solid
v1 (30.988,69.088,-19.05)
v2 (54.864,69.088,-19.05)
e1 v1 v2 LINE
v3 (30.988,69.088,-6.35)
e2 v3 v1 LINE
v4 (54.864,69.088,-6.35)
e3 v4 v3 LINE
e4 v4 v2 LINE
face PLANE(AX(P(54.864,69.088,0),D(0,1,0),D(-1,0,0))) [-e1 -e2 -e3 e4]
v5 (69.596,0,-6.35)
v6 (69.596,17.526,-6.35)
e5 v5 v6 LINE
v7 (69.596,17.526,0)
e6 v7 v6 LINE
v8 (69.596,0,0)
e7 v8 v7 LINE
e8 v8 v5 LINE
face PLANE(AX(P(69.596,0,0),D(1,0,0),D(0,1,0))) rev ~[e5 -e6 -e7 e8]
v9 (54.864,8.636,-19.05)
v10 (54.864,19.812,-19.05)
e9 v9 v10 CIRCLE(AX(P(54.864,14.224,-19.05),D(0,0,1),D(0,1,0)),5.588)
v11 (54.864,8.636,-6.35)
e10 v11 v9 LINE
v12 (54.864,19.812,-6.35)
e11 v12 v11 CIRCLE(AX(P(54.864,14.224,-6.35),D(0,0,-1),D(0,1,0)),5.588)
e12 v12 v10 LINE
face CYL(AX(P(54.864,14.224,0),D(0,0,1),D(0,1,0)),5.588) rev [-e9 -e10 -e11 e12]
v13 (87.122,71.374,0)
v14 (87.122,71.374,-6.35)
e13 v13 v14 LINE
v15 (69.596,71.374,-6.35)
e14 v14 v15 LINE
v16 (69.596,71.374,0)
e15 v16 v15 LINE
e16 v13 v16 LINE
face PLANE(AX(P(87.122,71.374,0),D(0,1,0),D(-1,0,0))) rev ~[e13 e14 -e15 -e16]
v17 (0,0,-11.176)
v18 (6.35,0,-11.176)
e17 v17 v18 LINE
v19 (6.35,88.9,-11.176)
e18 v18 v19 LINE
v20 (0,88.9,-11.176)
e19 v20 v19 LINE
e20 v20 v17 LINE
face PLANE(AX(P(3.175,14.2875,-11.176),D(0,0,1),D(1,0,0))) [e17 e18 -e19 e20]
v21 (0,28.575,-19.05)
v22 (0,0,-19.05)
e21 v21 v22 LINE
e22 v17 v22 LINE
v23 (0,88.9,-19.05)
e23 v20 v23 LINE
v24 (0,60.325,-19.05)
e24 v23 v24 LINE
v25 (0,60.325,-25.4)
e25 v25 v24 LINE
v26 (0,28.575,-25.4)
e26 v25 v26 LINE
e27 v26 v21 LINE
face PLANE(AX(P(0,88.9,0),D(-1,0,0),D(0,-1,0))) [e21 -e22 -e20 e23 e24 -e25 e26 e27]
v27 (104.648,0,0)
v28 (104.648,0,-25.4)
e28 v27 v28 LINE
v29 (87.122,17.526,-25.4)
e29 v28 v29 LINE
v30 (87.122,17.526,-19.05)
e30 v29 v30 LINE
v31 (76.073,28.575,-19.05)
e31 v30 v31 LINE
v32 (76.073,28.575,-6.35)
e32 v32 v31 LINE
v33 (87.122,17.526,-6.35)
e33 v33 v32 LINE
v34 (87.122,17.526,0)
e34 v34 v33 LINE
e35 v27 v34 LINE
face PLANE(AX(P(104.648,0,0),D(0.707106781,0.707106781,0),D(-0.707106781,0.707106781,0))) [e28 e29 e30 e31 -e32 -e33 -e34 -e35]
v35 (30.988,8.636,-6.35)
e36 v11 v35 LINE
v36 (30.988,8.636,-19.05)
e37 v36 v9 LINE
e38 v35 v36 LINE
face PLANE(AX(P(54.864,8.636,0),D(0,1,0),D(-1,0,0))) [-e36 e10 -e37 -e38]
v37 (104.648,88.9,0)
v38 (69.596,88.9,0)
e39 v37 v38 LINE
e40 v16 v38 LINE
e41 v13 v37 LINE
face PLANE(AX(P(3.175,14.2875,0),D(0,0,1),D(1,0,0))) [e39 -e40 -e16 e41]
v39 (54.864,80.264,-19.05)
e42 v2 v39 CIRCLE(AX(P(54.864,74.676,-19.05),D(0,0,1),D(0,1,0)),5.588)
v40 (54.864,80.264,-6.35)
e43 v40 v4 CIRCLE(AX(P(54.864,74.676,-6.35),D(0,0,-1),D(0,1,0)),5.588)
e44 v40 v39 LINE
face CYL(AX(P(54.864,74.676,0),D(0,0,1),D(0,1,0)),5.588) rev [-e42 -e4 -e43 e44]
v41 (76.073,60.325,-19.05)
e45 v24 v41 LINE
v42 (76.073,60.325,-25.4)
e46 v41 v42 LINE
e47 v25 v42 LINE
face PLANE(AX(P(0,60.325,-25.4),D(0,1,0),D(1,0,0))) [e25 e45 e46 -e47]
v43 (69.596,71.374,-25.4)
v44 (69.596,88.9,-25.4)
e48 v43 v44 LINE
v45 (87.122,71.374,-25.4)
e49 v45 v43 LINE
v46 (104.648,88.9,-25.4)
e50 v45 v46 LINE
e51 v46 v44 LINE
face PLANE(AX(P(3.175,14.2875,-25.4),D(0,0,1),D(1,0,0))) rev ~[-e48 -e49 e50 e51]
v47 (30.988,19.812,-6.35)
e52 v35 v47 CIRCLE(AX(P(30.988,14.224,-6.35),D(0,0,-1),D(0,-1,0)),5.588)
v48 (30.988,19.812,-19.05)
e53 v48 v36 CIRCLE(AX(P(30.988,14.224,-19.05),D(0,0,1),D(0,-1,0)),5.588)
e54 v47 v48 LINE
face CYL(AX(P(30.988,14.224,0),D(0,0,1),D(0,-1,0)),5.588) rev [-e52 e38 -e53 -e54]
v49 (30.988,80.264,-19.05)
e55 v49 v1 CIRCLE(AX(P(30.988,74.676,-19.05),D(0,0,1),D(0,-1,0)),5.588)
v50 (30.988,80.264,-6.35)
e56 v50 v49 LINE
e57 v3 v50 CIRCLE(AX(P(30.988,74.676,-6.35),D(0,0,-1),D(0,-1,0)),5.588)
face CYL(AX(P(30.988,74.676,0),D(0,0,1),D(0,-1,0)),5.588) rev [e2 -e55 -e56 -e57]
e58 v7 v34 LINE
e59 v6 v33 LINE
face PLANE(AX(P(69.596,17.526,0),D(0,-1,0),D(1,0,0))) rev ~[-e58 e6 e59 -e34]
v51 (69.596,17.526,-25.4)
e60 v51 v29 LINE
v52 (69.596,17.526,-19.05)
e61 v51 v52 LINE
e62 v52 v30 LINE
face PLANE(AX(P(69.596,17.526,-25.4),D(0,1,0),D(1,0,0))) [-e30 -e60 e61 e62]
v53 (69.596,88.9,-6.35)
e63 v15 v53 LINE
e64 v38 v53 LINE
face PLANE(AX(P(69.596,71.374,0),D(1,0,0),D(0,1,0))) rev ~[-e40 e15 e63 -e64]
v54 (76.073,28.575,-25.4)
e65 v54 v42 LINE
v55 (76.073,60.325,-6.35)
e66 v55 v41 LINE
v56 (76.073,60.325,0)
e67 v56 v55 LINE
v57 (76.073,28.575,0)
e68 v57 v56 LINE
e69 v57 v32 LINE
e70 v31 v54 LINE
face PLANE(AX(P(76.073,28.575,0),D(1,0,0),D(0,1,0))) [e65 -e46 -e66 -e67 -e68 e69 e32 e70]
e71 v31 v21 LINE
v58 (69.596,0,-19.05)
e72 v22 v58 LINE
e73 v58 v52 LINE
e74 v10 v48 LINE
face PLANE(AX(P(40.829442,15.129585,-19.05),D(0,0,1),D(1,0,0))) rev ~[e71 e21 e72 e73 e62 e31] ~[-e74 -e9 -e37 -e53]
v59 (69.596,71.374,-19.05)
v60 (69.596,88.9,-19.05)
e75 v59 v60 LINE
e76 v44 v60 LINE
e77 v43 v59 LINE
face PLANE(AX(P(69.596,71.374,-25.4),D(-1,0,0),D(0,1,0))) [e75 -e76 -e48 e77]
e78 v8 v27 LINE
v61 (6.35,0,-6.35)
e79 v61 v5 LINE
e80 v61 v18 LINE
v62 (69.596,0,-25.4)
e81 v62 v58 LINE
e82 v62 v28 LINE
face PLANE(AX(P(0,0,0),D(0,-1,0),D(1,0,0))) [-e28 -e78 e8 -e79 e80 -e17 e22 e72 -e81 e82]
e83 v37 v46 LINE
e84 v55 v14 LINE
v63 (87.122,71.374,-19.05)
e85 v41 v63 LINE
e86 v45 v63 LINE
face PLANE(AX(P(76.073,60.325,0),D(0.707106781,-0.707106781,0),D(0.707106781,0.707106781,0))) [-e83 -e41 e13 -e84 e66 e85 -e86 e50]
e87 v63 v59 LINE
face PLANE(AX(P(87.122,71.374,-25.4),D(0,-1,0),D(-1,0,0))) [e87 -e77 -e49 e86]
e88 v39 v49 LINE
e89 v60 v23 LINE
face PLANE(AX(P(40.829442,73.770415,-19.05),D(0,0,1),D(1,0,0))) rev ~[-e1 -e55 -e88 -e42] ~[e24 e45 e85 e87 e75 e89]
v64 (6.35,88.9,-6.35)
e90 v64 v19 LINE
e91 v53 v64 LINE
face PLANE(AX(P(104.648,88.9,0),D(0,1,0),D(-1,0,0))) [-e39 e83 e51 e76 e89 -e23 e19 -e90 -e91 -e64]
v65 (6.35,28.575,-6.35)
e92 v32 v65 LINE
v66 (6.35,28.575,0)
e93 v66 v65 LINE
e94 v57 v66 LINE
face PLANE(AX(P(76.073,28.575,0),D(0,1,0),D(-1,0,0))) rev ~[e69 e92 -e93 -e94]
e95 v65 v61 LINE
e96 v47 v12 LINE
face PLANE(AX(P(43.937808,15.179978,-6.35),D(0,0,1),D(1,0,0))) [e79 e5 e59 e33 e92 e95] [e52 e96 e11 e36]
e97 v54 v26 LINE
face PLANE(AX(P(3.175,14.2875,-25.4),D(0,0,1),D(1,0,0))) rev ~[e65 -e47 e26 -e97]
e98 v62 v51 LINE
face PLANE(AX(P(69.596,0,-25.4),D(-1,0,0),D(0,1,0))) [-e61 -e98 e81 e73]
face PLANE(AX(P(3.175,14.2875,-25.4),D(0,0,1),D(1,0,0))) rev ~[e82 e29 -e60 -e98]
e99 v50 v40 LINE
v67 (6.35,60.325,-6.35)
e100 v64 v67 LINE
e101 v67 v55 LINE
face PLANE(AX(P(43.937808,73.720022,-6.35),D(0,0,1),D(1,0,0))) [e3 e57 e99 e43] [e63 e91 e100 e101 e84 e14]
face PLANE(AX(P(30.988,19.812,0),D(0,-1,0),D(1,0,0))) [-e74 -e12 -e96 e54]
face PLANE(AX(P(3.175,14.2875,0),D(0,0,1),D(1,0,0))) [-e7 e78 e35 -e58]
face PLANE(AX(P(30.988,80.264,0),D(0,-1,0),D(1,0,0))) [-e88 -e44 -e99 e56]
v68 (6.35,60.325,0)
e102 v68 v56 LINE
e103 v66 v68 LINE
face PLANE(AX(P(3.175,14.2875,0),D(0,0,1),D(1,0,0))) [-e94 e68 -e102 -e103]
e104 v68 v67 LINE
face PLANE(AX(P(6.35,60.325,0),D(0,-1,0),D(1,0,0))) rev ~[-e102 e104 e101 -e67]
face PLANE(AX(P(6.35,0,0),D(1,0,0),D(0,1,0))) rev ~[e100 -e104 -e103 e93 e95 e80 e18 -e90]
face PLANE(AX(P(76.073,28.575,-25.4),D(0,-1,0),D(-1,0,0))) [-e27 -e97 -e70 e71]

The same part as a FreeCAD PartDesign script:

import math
import FreeCAD as App
import Part
import Sketcher

V = App.Vector
Q = App.Units.Quantity


def add_polygon(sketch, points):
    """Adds a closed chain of lines whose ends are joined by coincident constraints."""
    first, n = sketch.GeometryCount, len(points)
    for a, b in zip(points, points[1:] + points[:1]):
        sketch.addGeometry(Part.LineSegment(App.Vector(*a, 0), App.Vector(*b, 0)), False)
    for i in range(n):
        sketch.addConstraint(Sketcher.Constraint("Coincident", first + i, 2, first + (i + 1) % n, 1))

doc = App.newDocument("Part")
body = doc.addObject("PartDesign::Body", "Body")

# Sketch on XY plane
sketch1 = body.newObject("Sketcher::SketchObject", "Sketch")
sketch1.AttachmentSupport = (doc.getObject("XY_Plane"), [""])
sketch1.MapMode = "FlatFace"
add_polygon(sketch1, [(0, 0), (105, 0), (76, 29), (76, 60), (105, 89), (0, 89)])  # lines 0-5
sketch1.addGeometry(Part.LineSegment(V(55, 9, 0), V(31, 9, 0)), False)  # 6
sketch1.addGeometry(Part.ArcOfCircle(Part.Circle(V(31, 14, 0), V(0, 0, 1), 6), math.radians(90), math.radians(270)), False)  # 7
sketch1.addGeometry(Part.LineSegment(V(31, 20, 0), V(55, 20, 0)), False)  # 8
sketch1.addGeometry(Part.ArcOfCircle(Part.Circle(V(55, 14, 0), V(0, 0, 1), 6), math.radians(-90), math.radians(90)), False)  # 9
sketch1.addGeometry(Part.ArcOfCircle(Part.Circle(V(55, 75, 0), V(0, 0, 1), 6), math.radians(-90), math.radians(90)), False)  # 10
sketch1.addGeometry(Part.LineSegment(V(55, 69, 0), V(31, 69, 0)), False)  # 11
sketch1.addGeometry(Part.ArcOfCircle(Part.Circle(V(31, 75, 0), V(0, 0, 1), 6), math.radians(90), math.radians(270)), False)  # 12
sketch1.addGeometry(Part.LineSegment(V(31, 80, 0), V(55, 80, 0)), False)  # 13
sketch1.addConstraint(Sketcher.Constraint("Tangent", 6, 2, 7, 2))
sketch1.addConstraint(Sketcher.Constraint("Tangent", 7, 1, 8, 1))
sketch1.addConstraint(Sketcher.Constraint("Tangent", 8, 2, 9, 2))
sketch1.addConstraint(Sketcher.Constraint("Tangent", 9, 1, 6, 1))
sketch1.addConstraint(Sketcher.Constraint("Tangent", 10, 1, 11, 1))
sketch1.addConstraint(Sketcher.Constraint("Tangent", 11, 2, 12, 2))
sketch1.addConstraint(Sketcher.Constraint("Tangent", 12, 1, 13, 1))
sketch1.addConstraint(Sketcher.Constraint("Tangent", 13, 2, 10, 2))
sketch1.addConstraint(Sketcher.Constraint("Horizontal", 0))
sketch1.addConstraint(Sketcher.Constraint("Vertical", 2))
sketch1.addConstraint(Sketcher.Constraint("Horizontal", 4))
sketch1.addConstraint(Sketcher.Constraint("Vertical", 5))
sketch1.addConstraint(Sketcher.Constraint("Horizontal", 6))
sketch1.addConstraint(Sketcher.Constraint("Horizontal", 8))
sketch1.addConstraint(Sketcher.Constraint("Horizontal", 11))
sketch1.addConstraint(Sketcher.Constraint("Horizontal", 13))
sketch1.addConstraint(Sketcher.Constraint("Coincident", 5, 2, -1, 1))
sketch1.addConstraint(Sketcher.Constraint("Equal", 9, 10))
sketch1.addConstraint(Sketcher.Constraint("Perpendicular", 1, 3))
sketch1.addConstraint(Sketcher.Constraint("Vertical", 9, 3, 10, 3))
sketch1.addConstraint(Sketcher.Constraint("Vertical", 7, 3, 12, 3))
sketch1.addConstraint(Sketcher.Constraint("Vertical", 0, 2, 3, 2))
sketch1.addConstraint(Sketcher.Constraint("Equal", 1, 3))
sketch1.addConstraint(Sketcher.Constraint("Radius", 7, Q("0.22 in")))
sketch1.addConstraint(Sketcher.Constraint("DistanceY", 5, 2, 5, 1, Q("3.5 in")))
sketch1.addConstraint(Sketcher.Constraint("DistanceX", 0, 1, 0, 2, Q("4.12 in")))
sketch1.addConstraint(Sketcher.Constraint("DistanceX", 6, 2, 6, 1, Q("0.94 in")))
sketch1.addConstraint(Sketcher.Constraint("DistanceY", 2, 1, 2, 2, Q("1.25 in")))
sketch1.addConstraint(Sketcher.Constraint("DistanceX", 7, 3, 0, 2, Q("2.9 in")))
sketch1.addConstraint(Sketcher.Constraint("DistanceY", 6, 2, 12, 3, Q("2.6 in")))
sketch1.addConstraint(Sketcher.Constraint("DistanceY", -1, 1, 7, 3, Q("0.56 in")))
pad1 = body.newObject("PartDesign::Pad", "Pad")
pad1.Profile = sketch1
pad1.Length = Q("1 in")
pad1.Reversed = True

# Sketch on XY plane
sketch2 = body.newObject("Sketcher::SketchObject", "Sketch001")
sketch2.AttachmentSupport = (doc.getObject("XY_Plane"), [""])
sketch2.MapMode = "FlatFace"
add_polygon(sketch2, [(6, 29), (6, 0), (70, 0), (70, 18), (87, 18), (76, 29)])  # lines 0-5
sketch2.addGeometry(Part.LineSegment(V(55, 9, 0), V(31, 9, 0)), False)  # 6
sketch2.addGeometry(Part.ArcOfCircle(Part.Circle(V(31, 14, 0), V(0, 0, 1), 6), math.radians(90), math.radians(270)), False)  # 7
sketch2.addGeometry(Part.LineSegment(V(31, 20, 0), V(55, 20, 0)), False)  # 8
sketch2.addGeometry(Part.ArcOfCircle(Part.Circle(V(55, 14, 0), V(0, 0, 1), 6), math.radians(-90), math.radians(90)), False)  # 9
sketch2.addConstraint(Sketcher.Constraint("Tangent", 6, 2, 7, 2))
sketch2.addConstraint(Sketcher.Constraint("Tangent", 7, 1, 8, 1))
sketch2.addConstraint(Sketcher.Constraint("Tangent", 8, 2, 9, 2))
sketch2.addConstraint(Sketcher.Constraint("Tangent", 9, 1, 6, 1))
sketch2.addConstraint(Sketcher.Constraint("Vertical", 0))
sketch2.addConstraint(Sketcher.Constraint("Horizontal", 1))
sketch2.addConstraint(Sketcher.Constraint("Vertical", 2))
sketch2.addConstraint(Sketcher.Constraint("Horizontal", 3))
sketch2.addConstraint(Sketcher.Constraint("Horizontal", 5))
sketch2.addConstraint(Sketcher.Constraint("Horizontal", 6))
sketch2.addConstraint(Sketcher.Constraint("Horizontal", 8))
sketch2.addConstraint(Sketcher.Constraint("PointOnObject", 0, 2, -1))
sketch2.addConstraint(Sketcher.Constraint("Equal", 3, 2))
sketch2.addConstraint(Sketcher.Constraint("Radius", 7, Q("0.22 in")))
sketch2.addConstraint(Sketcher.Constraint("Angle", 4, Q("135 deg")))
sketch2.addConstraint(Sketcher.Constraint("DistanceX", 1, 1, 1, 2, Q("2.49 in")))
sketch2.addConstraint(Sketcher.Constraint("DistanceX", 3, 1, 3, 2, Q("0.69 in")))
sketch2.addConstraint(Sketcher.Constraint("DistanceX", 6, 2, 6, 1, Q("0.94 in")))
sketch2.addConstraint(Sketcher.Constraint("DistanceX", 5, 2, 5, 1, Q("2.745 in")))
sketch2.addConstraint(Sketcher.Constraint("DistanceX", -1, 1, 7, 3, Q("1.22 in")))
sketch2.addConstraint(Sketcher.Constraint("DistanceY", -1, 1, 7, 3, Q("0.56 in")))
sketch2.addConstraint(Sketcher.Constraint("DistanceX", -1, 1, 0, 2, Q("0.25 in")))
pocket1 = body.newObject("PartDesign::Pocket", "Pocket")
pocket1.Profile = sketch2
pocket1.Length = Q("0.25 in")

# Sketch on XY plane
sketch3 = body.newObject("Sketcher::SketchObject", "Sketch002")
sketch3.AttachmentSupport = (doc.getObject("XY_Plane"), [""])
sketch3.MapMode = "FlatFace"
add_polygon(sketch3, [(6, 89), (6, 60), (76, 60), (87, 71), (70, 71), (70, 89)])  # lines 0-5
sketch3.addGeometry(Part.ArcOfCircle(Part.Circle(V(55, 75, 0), V(0, 0, 1), 6), math.radians(-90), math.radians(90)), False)  # 6
sketch3.addGeometry(Part.LineSegment(V(55, 69, 0), V(31, 69, 0)), False)  # 7
sketch3.addGeometry(Part.ArcOfCircle(Part.Circle(V(31, 75, 0), V(0, 0, 1), 6), math.radians(90), math.radians(270)), False)  # 8
sketch3.addGeometry(Part.LineSegment(V(31, 80, 0), V(55, 80, 0)), False)  # 9
sketch3.addConstraint(Sketcher.Constraint("Tangent", 6, 1, 7, 1))
sketch3.addConstraint(Sketcher.Constraint("Tangent", 7, 2, 8, 2))
sketch3.addConstraint(Sketcher.Constraint("Tangent", 8, 1, 9, 1))
sketch3.addConstraint(Sketcher.Constraint("Tangent", 9, 2, 6, 2))
sketch3.addConstraint(Sketcher.Constraint("Vertical", 0))
sketch3.addConstraint(Sketcher.Constraint("Horizontal", 1))
sketch3.addConstraint(Sketcher.Constraint("Horizontal", 3))
sketch3.addConstraint(Sketcher.Constraint("Vertical", 4))
sketch3.addConstraint(Sketcher.Constraint("Horizontal", 5))
sketch3.addConstraint(Sketcher.Constraint("Horizontal", 7))
sketch3.addConstraint(Sketcher.Constraint("Horizontal", 9))
sketch3.addConstraint(Sketcher.Constraint("Equal", 3, 4))
sketch3.addConstraint(Sketcher.Constraint("Radius", 6, Q("0.22 in")))
sketch3.addConstraint(Sketcher.Constraint("Angle", 2, Q("45 deg")))
sketch3.addConstraint(Sketcher.Constraint("DistanceX", 3, 2, 3, 1, Q("0.69 in")))
sketch3.addConstraint(Sketcher.Constraint("DistanceX", 5, 2, 5, 1, Q("2.49 in")))
sketch3.addConstraint(Sketcher.Constraint("DistanceX", 7, 2, 7, 1, Q("0.94 in")))
sketch3.addConstraint(Sketcher.Constraint("DistanceY", -1, 1, 4, 2, Q("3.5 in")))
sketch3.addConstraint(Sketcher.Constraint("DistanceX", 1, 1, 1, 2, Q("2.745 in")))
sketch3.addConstraint(Sketcher.Constraint("DistanceX", -1, 1, 6, 3, Q("2.16 in")))
sketch3.addConstraint(Sketcher.Constraint("DistanceY", -1, 1, 6, 3, Q("2.94 in")))
sketch3.addConstraint(Sketcher.Constraint("DistanceX", -1, 1, 0, 2, Q("0.25 in")))
pocket2 = body.newObject("PartDesign::Pocket", "Pocket001")
pocket2.Profile = sketch3
pocket2.Length = Q("0.25 in")

# Sketch on XY plane
sketch4 = body.newObject("Sketcher::SketchObject", "Sketch003")
sketch4.AttachmentSupport = (doc.getObject("XY_Plane"), [""])
sketch4.MapMode = "FlatFace"
add_polygon(sketch4, [(0, 0), (6, 0), (6, 89), (0, 89)])  # lines 0-3
sketch4.addConstraint(Sketcher.Constraint("Horizontal", 0))
sketch4.addConstraint(Sketcher.Constraint("Vertical", 1))
sketch4.addConstraint(Sketcher.Constraint("Horizontal", 2))
sketch4.addConstraint(Sketcher.Constraint("Vertical", 3))
sketch4.addConstraint(Sketcher.Constraint("Coincident", 3, 2, -1, 1))
sketch4.addConstraint(Sketcher.Constraint("DistanceY", 1, 1, 1, 2, Q("3.5 in")))
sketch4.addConstraint(Sketcher.Constraint("DistanceX", 0, 1, 0, 2, Q("0.25 in")))
pocket3 = body.newObject("PartDesign::Pocket", "Pocket002")
pocket3.Profile = sketch4
pocket3.Length = Q("0.44 in")

# Sketch on XY plane
sketch5 = body.newObject("Sketcher::SketchObject", "Sketch004")
sketch5.AttachmentSupport = (doc.getObject("XY_Plane"), [""])
sketch5.MapMode = "FlatFace"
sketch5.AttachmentOffset = App.Placement(V(0, 0, -1 * 25.4), App.Rotation())
add_polygon(sketch5, [(0, 29), (0, 0), (70, 0), (70, 18), (87, 18), (76, 29)])  # lines 0-5
add_polygon(sketch5, [(0, 89), (0, 60), (76, 60), (87, 71), (70, 71), (70, 89)])  # lines 6-11
sketch5.addConstraint(Sketcher.Constraint("Vertical", 0))
sketch5.addConstraint(Sketcher.Constraint("Horizontal", 1))
sketch5.addConstraint(Sketcher.Constraint("Vertical", 2))
sketch5.addConstraint(Sketcher.Constraint("Horizontal", 3))
sketch5.addConstraint(Sketcher.Constraint("Horizontal", 5))
sketch5.addConstraint(Sketcher.Constraint("Vertical", 6))
sketch5.addConstraint(Sketcher.Constraint("Horizontal", 7))
sketch5.addConstraint(Sketcher.Constraint("Horizontal", 9))
sketch5.addConstraint(Sketcher.Constraint("Vertical", 10))
sketch5.addConstraint(Sketcher.Constraint("Horizontal", 11))
sketch5.addConstraint(Sketcher.Constraint("Coincident", 0, 2, -1, 1))
sketch5.addConstraint(Sketcher.Constraint("PointOnObject", 6, 2, -2))
sketch5.addConstraint(Sketcher.Constraint("Perpendicular", 4, 8))
sketch5.addConstraint(Sketcher.Constraint("Vertical", 4, 2, 7, 2))
sketch5.addConstraint(Sketcher.Constraint("Vertical", 3, 2, 8, 2))
sketch5.addConstraint(Sketcher.Constraint("Vertical", 2, 2, 9, 2))
sketch5.addConstraint(Sketcher.Constraint("Equal", 9, 2))
sketch5.addConstraint(Sketcher.Constraint("Equal", 0, 6))
sketch5.addConstraint(Sketcher.Constraint("Equal", 2, 10))
sketch5.addConstraint(Sketcher.Constraint("DistanceX", 1, 1, 1, 2, Q("2.74 in")))
sketch5.addConstraint(Sketcher.Constraint("DistanceX", 3, 1, 3, 2, Q("0.69 in")))
sketch5.addConstraint(Sketcher.Constraint("DistanceY", -1, 1, 10, 2, Q("3.5 in")))
sketch5.addConstraint(Sketcher.Constraint("DistanceX", 5, 2, 5, 1, Q("2.995 in")))
pocket4 = body.newObject("PartDesign::Pocket", "Pocket003")
pocket4.Profile = sketch5
pocket4.Length = Q("0.25 in")
pocket4.Reversed = True

doc.recompute()
